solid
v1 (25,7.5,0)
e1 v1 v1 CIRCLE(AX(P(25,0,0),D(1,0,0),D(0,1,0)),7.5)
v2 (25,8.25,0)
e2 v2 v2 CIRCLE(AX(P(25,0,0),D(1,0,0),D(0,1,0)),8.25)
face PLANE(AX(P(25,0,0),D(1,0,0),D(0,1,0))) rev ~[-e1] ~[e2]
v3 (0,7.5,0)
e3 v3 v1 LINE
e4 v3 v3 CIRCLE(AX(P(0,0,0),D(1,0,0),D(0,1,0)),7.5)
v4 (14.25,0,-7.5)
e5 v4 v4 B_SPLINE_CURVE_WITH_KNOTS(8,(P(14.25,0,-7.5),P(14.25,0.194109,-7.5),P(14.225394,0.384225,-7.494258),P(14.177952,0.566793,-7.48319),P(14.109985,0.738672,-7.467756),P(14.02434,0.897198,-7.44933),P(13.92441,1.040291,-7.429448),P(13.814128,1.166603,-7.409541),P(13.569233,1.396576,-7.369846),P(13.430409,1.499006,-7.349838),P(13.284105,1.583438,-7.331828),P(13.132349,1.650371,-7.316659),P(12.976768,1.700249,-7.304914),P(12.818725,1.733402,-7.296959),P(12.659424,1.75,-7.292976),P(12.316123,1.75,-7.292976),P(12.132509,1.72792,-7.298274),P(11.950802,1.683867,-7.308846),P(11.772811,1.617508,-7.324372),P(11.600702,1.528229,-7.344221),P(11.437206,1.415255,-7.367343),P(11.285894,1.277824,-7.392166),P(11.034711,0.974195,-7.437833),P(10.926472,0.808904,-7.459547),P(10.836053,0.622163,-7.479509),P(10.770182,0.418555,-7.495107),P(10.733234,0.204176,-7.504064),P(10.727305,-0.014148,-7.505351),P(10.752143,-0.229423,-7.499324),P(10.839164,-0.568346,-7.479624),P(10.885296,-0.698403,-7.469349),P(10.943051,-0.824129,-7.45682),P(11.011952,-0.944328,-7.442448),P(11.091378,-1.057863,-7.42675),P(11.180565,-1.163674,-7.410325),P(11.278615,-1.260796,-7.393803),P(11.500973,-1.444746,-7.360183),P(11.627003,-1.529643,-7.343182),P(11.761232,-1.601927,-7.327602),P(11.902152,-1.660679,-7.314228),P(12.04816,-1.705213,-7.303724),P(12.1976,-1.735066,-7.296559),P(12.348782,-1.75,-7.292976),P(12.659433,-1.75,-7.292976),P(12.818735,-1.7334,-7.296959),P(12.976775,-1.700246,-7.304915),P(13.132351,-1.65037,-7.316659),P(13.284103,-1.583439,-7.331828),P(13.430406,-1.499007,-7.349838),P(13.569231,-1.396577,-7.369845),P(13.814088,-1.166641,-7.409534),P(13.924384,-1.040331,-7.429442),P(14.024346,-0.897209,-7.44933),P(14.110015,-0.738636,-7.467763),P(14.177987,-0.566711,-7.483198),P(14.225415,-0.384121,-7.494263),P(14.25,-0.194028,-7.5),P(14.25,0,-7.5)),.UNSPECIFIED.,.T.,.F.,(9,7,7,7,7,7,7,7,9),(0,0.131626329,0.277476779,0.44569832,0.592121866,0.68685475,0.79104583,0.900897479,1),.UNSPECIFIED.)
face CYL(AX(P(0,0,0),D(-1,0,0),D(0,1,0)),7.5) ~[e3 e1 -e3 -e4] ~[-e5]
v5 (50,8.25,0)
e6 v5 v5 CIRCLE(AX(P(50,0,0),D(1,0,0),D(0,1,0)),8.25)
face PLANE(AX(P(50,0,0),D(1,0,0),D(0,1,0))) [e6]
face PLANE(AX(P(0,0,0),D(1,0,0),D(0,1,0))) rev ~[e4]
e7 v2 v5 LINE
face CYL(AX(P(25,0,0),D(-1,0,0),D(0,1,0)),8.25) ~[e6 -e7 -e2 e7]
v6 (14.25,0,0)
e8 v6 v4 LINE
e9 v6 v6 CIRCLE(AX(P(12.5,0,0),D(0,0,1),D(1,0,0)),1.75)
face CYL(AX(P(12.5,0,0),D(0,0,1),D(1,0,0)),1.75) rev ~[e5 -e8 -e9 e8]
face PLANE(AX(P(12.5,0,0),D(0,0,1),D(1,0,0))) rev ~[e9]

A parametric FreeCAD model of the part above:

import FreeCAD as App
import Part
import Sketcher

V = App.Vector
Q = App.Units.Quantity

doc = App.newDocument("Part")
body = doc.addObject("PartDesign::Body", "Body")

# Sketch on YZ plane
sketch1 = doc.addObject("Sketcher::SketchObject", "Sketch")
body.addObject(sketch1)
sketch1.AttachmentSupport = (doc.YZ_Plane, [""])
sketch1.MapMode = "FlatFace"
sketch1.addGeometry(Part.Circle(V(0, 0, 0), V(0, 0, 1), 8), False)
sketch1.addConstraint(Sketcher.Constraint("Coincident", 0, 3, -1, 1))
sketch1.addConstraint(Sketcher.Constraint("Diameter", 0, Q("15 mm")))
pad1 = doc.addObject("PartDesign::Pad", "Pad")
body.addObject(pad1)
pad1.Profile = sketch1
pad1.Length = 25

# Sketch on YZ plane
sketch2 = doc.addObject("Sketcher::SketchObject", "Sketch001")
body.addObject(sketch2)
sketch2.AttachmentSupport = (doc.YZ_Plane, [""])
sketch2.MapMode = "FlatFace"
sketch2.AttachmentOffset = App.Placement(V(0, 0, 25), App.Rotation())
sketch2.addGeometry(Part.Circle(V(0, 0, 0), V(0, 0, 1), 8), False)
sketch2.addConstraint(Sketcher.Constraint("Coincident", 0, 3, -1, 1))
sketch2.addConstraint(Sketcher.Constraint("Diameter", 0, Q("16.5 mm")))
pad2 = doc.addObject("PartDesign::Pad", "Pad001")
body.addObject(pad2)
pad2.Profile = sketch2
pad2.Length = 25

# Sketch on XY plane
sketch3 = doc.addObject("Sketcher::SketchObject", "Sketch002")
body.addObject(sketch3)
sketch3.AttachmentSupport = (doc.XY_Plane, [""])
sketch3.MapMode = "FlatFace"
sketch3.addGeometry(Part.Circle(V(12.5, 0, 0), V(0, 0, 1), 1.8), False)
sketch3.addConstraint(Sketcher.Constraint("PointOnObject", 0, 3, -1))
sketch3.addConstraint(Sketcher.Constraint("Diameter", 0, Q("3.5 mm")))
sketch3.addConstraint(Sketcher.Constraint("DistanceX", -1, 1, 0, 3, Q("12.5 mm")))
pocket1 = doc.addObject("PartDesign::Pocket", "Pocket")
body.addObject(pocket1)
pocket1.Profile = sketch3
pocket1.Length = 25

doc.recompute()
